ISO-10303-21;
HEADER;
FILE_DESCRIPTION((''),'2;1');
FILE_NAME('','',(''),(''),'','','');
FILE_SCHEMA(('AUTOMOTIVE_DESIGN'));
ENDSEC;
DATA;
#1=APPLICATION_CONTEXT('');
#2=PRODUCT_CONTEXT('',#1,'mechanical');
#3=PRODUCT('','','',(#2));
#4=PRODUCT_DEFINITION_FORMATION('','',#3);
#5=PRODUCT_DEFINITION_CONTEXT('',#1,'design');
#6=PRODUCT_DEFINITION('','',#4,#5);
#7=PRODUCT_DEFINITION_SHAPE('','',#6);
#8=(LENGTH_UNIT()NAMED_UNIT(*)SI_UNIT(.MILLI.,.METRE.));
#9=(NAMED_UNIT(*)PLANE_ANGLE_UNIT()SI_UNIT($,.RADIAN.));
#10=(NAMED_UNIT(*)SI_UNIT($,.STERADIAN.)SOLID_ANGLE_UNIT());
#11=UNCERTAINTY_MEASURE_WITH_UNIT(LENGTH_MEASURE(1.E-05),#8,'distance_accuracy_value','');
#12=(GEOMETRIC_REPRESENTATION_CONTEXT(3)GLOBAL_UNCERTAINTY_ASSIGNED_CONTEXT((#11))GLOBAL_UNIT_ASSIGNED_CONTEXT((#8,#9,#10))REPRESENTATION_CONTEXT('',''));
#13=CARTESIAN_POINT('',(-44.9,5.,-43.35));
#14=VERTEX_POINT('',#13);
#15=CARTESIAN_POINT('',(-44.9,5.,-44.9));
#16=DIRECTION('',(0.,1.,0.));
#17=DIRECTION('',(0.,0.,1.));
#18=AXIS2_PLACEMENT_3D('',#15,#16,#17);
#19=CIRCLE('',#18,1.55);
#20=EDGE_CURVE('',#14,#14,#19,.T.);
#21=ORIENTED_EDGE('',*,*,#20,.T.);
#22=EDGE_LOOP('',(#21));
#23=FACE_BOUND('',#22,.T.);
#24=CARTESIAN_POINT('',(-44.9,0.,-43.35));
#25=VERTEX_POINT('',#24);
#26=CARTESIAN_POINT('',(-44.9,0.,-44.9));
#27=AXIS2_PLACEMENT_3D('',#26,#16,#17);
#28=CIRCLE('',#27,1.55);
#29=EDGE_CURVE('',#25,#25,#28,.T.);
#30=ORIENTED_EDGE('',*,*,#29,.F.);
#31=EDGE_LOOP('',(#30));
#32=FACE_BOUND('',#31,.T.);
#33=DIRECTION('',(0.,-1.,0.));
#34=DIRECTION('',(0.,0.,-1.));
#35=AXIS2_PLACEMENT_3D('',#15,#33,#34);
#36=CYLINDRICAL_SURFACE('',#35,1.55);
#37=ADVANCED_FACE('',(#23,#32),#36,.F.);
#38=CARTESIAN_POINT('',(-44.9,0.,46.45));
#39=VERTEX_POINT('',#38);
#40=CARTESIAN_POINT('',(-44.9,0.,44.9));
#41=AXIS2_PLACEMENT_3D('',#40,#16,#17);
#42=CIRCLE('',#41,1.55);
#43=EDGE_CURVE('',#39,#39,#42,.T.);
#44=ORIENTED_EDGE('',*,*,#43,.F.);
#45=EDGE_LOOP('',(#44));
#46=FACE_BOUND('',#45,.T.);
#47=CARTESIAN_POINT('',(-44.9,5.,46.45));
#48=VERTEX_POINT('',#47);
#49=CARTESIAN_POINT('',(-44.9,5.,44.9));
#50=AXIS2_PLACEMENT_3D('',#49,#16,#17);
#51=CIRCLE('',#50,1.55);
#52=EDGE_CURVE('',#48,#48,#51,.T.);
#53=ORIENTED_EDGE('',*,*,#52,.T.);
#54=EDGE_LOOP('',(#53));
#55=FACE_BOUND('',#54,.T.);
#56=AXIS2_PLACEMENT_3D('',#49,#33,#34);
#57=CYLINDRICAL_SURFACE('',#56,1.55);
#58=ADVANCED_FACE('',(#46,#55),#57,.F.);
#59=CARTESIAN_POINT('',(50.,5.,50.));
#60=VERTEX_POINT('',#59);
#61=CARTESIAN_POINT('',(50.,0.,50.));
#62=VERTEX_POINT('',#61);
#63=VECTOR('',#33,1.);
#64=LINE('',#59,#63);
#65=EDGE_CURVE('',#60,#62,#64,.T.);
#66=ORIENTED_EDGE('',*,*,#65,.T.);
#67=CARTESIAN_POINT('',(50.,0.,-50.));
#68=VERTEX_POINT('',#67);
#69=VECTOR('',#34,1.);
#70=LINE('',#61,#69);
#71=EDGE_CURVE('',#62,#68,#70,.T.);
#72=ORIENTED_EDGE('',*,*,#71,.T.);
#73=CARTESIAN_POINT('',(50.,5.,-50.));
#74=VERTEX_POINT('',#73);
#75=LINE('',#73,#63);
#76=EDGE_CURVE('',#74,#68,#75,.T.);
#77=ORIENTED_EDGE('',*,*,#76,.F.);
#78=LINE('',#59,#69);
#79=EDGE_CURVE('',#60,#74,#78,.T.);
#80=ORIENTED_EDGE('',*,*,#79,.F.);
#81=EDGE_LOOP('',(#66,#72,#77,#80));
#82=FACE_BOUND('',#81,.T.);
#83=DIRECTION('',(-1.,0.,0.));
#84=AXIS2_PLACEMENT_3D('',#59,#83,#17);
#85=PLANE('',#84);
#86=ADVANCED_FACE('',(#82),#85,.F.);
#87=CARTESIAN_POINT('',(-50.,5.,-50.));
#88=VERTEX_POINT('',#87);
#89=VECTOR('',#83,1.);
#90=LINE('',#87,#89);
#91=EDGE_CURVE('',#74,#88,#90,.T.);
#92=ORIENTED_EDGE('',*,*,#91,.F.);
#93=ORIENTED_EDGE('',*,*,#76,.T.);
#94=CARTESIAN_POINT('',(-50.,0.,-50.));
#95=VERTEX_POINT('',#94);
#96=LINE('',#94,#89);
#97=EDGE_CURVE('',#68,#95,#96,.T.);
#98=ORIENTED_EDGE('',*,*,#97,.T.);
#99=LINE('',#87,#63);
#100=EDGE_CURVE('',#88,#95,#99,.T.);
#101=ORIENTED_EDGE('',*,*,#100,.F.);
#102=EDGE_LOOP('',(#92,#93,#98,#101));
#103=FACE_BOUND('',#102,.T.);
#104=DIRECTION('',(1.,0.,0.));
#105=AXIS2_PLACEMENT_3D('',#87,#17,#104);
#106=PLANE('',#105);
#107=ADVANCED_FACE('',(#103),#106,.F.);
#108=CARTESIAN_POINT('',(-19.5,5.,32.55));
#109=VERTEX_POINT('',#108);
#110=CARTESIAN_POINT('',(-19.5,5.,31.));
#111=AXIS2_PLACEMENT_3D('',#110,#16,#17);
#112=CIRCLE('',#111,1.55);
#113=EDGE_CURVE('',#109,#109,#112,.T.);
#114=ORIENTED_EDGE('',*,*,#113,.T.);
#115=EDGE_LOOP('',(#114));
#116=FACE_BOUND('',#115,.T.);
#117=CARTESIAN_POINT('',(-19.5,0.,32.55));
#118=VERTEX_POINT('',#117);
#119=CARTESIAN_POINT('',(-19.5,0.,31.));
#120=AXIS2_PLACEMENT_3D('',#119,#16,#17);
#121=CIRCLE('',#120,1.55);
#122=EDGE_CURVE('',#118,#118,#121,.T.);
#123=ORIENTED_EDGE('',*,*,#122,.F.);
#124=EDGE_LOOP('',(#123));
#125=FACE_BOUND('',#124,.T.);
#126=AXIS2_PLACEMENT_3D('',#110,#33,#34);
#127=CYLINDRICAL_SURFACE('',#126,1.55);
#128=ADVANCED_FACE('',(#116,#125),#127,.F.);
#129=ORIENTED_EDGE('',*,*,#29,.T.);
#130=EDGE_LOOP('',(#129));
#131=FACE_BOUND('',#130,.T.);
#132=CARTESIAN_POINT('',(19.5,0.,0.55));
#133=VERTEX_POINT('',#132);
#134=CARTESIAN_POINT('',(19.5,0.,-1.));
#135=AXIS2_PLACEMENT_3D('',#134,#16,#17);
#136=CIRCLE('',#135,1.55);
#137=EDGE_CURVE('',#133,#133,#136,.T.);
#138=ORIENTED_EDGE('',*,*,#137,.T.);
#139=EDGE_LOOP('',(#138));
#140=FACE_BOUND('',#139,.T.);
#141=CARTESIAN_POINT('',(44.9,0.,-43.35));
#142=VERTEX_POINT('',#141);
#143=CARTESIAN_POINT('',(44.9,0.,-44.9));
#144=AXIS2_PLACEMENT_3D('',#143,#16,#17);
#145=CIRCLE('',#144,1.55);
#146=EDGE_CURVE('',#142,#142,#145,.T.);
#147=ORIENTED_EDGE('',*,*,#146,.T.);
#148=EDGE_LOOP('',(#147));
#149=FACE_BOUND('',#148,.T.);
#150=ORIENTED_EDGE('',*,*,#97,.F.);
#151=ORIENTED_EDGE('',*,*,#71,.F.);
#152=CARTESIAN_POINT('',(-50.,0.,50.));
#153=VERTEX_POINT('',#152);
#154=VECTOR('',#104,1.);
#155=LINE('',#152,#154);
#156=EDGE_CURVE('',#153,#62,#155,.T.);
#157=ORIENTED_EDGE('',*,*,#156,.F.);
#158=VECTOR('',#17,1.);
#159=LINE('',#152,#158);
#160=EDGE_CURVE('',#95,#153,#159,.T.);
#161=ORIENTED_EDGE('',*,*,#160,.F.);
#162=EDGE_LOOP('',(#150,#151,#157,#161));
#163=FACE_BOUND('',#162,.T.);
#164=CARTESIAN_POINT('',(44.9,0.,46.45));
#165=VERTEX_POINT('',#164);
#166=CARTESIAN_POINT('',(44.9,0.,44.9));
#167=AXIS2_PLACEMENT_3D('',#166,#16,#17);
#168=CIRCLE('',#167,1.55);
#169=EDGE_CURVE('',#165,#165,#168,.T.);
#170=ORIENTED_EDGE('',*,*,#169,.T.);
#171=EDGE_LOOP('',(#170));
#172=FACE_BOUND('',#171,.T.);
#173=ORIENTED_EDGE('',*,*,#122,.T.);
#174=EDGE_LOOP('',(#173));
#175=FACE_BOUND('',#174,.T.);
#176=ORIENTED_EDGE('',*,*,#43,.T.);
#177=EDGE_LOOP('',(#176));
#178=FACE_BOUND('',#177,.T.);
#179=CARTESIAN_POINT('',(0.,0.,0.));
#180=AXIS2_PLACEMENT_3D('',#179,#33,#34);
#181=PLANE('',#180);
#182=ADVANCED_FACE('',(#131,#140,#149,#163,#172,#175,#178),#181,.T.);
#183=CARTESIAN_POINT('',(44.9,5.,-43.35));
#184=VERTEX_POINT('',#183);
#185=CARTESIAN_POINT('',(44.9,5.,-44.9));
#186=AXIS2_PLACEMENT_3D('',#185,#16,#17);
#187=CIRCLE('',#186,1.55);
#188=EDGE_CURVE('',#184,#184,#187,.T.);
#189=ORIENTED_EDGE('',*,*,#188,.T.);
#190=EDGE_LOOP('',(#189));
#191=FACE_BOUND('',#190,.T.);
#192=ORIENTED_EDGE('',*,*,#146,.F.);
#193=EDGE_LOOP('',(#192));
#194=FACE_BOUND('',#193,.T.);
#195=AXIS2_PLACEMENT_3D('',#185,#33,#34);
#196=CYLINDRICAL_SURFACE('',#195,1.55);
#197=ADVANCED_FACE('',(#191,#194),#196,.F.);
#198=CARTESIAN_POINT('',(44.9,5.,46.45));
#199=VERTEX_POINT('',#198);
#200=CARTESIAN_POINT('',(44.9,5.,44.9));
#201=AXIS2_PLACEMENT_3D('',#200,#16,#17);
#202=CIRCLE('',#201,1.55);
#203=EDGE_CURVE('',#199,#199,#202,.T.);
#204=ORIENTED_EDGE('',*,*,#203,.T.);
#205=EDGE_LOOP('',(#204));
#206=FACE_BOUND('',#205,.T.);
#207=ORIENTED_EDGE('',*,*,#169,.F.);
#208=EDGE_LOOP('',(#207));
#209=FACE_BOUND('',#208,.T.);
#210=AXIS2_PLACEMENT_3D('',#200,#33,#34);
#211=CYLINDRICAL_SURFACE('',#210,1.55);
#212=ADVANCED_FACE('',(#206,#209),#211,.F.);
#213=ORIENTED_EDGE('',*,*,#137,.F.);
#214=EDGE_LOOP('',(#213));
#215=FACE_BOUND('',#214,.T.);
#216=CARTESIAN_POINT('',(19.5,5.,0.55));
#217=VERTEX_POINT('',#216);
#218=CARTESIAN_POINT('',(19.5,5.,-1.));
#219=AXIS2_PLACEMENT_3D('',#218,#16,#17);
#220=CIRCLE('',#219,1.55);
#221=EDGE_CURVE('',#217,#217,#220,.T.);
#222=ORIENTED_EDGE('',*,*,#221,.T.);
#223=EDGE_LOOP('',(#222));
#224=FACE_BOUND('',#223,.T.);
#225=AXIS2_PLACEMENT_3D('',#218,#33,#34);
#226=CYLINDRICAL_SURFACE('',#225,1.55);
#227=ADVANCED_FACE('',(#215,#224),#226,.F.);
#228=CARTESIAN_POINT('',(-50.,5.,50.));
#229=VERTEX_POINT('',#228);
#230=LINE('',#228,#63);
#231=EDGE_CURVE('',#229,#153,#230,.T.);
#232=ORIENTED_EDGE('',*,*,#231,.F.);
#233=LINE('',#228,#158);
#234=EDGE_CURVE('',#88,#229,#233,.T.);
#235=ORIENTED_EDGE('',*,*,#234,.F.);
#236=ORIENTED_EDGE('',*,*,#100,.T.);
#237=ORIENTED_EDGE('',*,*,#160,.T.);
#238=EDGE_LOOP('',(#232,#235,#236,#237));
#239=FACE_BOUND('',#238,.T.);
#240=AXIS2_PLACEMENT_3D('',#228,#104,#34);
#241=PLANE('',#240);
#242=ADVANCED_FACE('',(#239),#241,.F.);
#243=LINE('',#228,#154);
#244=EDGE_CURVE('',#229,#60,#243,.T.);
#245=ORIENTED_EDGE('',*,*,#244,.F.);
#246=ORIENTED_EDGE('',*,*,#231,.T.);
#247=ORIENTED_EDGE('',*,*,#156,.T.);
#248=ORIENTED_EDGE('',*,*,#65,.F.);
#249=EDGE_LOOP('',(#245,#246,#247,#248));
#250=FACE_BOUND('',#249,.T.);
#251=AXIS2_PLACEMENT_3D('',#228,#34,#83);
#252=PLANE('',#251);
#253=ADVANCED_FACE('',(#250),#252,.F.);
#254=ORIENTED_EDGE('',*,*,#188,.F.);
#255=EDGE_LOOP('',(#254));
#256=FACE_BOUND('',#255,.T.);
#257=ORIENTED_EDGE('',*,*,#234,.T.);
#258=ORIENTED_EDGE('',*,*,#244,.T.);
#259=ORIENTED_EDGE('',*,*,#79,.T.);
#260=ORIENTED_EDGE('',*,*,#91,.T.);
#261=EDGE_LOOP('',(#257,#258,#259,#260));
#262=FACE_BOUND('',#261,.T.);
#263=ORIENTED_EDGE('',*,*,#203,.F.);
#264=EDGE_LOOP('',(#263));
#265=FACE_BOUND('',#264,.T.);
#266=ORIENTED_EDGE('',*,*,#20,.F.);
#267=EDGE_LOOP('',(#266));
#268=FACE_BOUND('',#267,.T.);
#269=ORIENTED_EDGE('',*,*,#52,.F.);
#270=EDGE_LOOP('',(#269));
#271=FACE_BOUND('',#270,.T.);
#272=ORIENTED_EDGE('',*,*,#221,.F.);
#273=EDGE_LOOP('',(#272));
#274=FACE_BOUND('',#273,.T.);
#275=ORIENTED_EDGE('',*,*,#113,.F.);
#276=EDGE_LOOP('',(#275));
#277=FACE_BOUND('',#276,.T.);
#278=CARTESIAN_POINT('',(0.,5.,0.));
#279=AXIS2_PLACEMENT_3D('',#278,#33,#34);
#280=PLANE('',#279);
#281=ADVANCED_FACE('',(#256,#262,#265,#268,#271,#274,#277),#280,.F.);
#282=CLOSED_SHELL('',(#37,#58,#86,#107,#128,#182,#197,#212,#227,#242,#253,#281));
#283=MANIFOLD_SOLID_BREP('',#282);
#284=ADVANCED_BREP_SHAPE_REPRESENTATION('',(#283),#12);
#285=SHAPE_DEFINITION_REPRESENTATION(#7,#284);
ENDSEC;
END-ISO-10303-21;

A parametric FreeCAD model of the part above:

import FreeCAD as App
import Part
import Sketcher

V = App.Vector


def add_polygon(sketch, points):
    """Adds a closed chain of lines whose ends are joined by coincident constraints."""
    first, n = sketch.GeometryCount, len(points)
    for a, b in zip(points, points[1:] + points[:1]):
        sketch.addGeometry(Part.LineSegment(App.Vector(*a, 0), App.Vector(*b, 0)), False)
    for i in range(n):
        sketch.addConstraint(Sketcher.Constraint("Coincident", first + i, 2, first + (i + 1) % n, 1))

doc = App.newDocument("Part")
body = doc.addObject("PartDesign::Body", "Body")

sketch1 = body.newObject("Sketcher::SketchObject", "Sketch")
sketch1.AttachmentSupport = (doc.getObject("XZ_Plane"), [""])
sketch1.MapMode = "FlatFace"
add_polygon(sketch1, [(-50, -50), (-50, 50), (50, 50), (50, -50)])
sketch1.addGeometry(Part.Circle(V(-44.9, 44.9, 0), V(0, 0, 1), 1.6), False)
sketch1.addGeometry(Part.Circle(V(-19.5, 31, 0), V(0, 0, 1), 1.6), False)
sketch1.addGeometry(Part.Circle(V(44.9, 44.9, 0), V(0, 0, 1), 1.6), False)
sketch1.addGeometry(Part.Circle(V(-44.9, -44.9, 0), V(0, 0, 1), 1.6), False)
sketch1.addGeometry(Part.Circle(V(19.5, -1, 0), V(0, 0, 1), 1.6), False)
sketch1.addGeometry(Part.Circle(V(44.9, -44.9, 0), V(0, 0, 1), 1.6), False)
sketch1.addConstraint([
    Sketcher.Constraint("Vertical", 0),
    Sketcher.Constraint("Horizontal", 1),
    Sketcher.Constraint("Vertical", 2),
    Sketcher.Constraint("Horizontal", 3),
    Sketcher.Constraint("Equal", 4, 5),
    Sketcher.Constraint("Equal", 5, 6),
    Sketcher.Constraint("Equal", 6, 7),
    Sketcher.Constraint("Equal", 7, 8),
    Sketcher.Constraint("Equal", 8, 9),
    Sketcher.Constraint("Symmetric", 6, 3, 7, 3, -1, 1),
    Sketcher.Constraint("Symmetric", 4, 3, 9, 3, -1, 1),
    Sketcher.Constraint("Symmetric", 0, 2, 2, 2, -1, 1),
    Sketcher.Constraint("Symmetric", 4, 3, 6, 3, -2),
    Sketcher.Constraint("Equal", 3, 0),
    Sketcher.Constraint("Diameter", 4, 3.1),
    Sketcher.Constraint("DistanceX", 1, 1, 1, 2, 100.0),
    Sketcher.Constraint("DistanceY", -1, 1, 5, 3, 31.0),
    Sketcher.Constraint("DistanceY", 8, 3, -1, 1, 1.0),
    Sketcher.Constraint("DistanceX", 5, 3, 8, 3, 39.0),
    Sketcher.Constraint("DistanceX", 4, 3, -1, 1, 44.9),
    Sketcher.Constraint("DistanceY", -1, 1, 4, 3, 44.9),
    Sketcher.Constraint("DistanceX", 5, 3, -1, 1, 19.5),
])
pad1 = body.newObject("PartDesign::Pad", "Pad")
pad1.Profile = sketch1
pad1.Length = 5
pad1.Reversed = True

doc.recompute()
